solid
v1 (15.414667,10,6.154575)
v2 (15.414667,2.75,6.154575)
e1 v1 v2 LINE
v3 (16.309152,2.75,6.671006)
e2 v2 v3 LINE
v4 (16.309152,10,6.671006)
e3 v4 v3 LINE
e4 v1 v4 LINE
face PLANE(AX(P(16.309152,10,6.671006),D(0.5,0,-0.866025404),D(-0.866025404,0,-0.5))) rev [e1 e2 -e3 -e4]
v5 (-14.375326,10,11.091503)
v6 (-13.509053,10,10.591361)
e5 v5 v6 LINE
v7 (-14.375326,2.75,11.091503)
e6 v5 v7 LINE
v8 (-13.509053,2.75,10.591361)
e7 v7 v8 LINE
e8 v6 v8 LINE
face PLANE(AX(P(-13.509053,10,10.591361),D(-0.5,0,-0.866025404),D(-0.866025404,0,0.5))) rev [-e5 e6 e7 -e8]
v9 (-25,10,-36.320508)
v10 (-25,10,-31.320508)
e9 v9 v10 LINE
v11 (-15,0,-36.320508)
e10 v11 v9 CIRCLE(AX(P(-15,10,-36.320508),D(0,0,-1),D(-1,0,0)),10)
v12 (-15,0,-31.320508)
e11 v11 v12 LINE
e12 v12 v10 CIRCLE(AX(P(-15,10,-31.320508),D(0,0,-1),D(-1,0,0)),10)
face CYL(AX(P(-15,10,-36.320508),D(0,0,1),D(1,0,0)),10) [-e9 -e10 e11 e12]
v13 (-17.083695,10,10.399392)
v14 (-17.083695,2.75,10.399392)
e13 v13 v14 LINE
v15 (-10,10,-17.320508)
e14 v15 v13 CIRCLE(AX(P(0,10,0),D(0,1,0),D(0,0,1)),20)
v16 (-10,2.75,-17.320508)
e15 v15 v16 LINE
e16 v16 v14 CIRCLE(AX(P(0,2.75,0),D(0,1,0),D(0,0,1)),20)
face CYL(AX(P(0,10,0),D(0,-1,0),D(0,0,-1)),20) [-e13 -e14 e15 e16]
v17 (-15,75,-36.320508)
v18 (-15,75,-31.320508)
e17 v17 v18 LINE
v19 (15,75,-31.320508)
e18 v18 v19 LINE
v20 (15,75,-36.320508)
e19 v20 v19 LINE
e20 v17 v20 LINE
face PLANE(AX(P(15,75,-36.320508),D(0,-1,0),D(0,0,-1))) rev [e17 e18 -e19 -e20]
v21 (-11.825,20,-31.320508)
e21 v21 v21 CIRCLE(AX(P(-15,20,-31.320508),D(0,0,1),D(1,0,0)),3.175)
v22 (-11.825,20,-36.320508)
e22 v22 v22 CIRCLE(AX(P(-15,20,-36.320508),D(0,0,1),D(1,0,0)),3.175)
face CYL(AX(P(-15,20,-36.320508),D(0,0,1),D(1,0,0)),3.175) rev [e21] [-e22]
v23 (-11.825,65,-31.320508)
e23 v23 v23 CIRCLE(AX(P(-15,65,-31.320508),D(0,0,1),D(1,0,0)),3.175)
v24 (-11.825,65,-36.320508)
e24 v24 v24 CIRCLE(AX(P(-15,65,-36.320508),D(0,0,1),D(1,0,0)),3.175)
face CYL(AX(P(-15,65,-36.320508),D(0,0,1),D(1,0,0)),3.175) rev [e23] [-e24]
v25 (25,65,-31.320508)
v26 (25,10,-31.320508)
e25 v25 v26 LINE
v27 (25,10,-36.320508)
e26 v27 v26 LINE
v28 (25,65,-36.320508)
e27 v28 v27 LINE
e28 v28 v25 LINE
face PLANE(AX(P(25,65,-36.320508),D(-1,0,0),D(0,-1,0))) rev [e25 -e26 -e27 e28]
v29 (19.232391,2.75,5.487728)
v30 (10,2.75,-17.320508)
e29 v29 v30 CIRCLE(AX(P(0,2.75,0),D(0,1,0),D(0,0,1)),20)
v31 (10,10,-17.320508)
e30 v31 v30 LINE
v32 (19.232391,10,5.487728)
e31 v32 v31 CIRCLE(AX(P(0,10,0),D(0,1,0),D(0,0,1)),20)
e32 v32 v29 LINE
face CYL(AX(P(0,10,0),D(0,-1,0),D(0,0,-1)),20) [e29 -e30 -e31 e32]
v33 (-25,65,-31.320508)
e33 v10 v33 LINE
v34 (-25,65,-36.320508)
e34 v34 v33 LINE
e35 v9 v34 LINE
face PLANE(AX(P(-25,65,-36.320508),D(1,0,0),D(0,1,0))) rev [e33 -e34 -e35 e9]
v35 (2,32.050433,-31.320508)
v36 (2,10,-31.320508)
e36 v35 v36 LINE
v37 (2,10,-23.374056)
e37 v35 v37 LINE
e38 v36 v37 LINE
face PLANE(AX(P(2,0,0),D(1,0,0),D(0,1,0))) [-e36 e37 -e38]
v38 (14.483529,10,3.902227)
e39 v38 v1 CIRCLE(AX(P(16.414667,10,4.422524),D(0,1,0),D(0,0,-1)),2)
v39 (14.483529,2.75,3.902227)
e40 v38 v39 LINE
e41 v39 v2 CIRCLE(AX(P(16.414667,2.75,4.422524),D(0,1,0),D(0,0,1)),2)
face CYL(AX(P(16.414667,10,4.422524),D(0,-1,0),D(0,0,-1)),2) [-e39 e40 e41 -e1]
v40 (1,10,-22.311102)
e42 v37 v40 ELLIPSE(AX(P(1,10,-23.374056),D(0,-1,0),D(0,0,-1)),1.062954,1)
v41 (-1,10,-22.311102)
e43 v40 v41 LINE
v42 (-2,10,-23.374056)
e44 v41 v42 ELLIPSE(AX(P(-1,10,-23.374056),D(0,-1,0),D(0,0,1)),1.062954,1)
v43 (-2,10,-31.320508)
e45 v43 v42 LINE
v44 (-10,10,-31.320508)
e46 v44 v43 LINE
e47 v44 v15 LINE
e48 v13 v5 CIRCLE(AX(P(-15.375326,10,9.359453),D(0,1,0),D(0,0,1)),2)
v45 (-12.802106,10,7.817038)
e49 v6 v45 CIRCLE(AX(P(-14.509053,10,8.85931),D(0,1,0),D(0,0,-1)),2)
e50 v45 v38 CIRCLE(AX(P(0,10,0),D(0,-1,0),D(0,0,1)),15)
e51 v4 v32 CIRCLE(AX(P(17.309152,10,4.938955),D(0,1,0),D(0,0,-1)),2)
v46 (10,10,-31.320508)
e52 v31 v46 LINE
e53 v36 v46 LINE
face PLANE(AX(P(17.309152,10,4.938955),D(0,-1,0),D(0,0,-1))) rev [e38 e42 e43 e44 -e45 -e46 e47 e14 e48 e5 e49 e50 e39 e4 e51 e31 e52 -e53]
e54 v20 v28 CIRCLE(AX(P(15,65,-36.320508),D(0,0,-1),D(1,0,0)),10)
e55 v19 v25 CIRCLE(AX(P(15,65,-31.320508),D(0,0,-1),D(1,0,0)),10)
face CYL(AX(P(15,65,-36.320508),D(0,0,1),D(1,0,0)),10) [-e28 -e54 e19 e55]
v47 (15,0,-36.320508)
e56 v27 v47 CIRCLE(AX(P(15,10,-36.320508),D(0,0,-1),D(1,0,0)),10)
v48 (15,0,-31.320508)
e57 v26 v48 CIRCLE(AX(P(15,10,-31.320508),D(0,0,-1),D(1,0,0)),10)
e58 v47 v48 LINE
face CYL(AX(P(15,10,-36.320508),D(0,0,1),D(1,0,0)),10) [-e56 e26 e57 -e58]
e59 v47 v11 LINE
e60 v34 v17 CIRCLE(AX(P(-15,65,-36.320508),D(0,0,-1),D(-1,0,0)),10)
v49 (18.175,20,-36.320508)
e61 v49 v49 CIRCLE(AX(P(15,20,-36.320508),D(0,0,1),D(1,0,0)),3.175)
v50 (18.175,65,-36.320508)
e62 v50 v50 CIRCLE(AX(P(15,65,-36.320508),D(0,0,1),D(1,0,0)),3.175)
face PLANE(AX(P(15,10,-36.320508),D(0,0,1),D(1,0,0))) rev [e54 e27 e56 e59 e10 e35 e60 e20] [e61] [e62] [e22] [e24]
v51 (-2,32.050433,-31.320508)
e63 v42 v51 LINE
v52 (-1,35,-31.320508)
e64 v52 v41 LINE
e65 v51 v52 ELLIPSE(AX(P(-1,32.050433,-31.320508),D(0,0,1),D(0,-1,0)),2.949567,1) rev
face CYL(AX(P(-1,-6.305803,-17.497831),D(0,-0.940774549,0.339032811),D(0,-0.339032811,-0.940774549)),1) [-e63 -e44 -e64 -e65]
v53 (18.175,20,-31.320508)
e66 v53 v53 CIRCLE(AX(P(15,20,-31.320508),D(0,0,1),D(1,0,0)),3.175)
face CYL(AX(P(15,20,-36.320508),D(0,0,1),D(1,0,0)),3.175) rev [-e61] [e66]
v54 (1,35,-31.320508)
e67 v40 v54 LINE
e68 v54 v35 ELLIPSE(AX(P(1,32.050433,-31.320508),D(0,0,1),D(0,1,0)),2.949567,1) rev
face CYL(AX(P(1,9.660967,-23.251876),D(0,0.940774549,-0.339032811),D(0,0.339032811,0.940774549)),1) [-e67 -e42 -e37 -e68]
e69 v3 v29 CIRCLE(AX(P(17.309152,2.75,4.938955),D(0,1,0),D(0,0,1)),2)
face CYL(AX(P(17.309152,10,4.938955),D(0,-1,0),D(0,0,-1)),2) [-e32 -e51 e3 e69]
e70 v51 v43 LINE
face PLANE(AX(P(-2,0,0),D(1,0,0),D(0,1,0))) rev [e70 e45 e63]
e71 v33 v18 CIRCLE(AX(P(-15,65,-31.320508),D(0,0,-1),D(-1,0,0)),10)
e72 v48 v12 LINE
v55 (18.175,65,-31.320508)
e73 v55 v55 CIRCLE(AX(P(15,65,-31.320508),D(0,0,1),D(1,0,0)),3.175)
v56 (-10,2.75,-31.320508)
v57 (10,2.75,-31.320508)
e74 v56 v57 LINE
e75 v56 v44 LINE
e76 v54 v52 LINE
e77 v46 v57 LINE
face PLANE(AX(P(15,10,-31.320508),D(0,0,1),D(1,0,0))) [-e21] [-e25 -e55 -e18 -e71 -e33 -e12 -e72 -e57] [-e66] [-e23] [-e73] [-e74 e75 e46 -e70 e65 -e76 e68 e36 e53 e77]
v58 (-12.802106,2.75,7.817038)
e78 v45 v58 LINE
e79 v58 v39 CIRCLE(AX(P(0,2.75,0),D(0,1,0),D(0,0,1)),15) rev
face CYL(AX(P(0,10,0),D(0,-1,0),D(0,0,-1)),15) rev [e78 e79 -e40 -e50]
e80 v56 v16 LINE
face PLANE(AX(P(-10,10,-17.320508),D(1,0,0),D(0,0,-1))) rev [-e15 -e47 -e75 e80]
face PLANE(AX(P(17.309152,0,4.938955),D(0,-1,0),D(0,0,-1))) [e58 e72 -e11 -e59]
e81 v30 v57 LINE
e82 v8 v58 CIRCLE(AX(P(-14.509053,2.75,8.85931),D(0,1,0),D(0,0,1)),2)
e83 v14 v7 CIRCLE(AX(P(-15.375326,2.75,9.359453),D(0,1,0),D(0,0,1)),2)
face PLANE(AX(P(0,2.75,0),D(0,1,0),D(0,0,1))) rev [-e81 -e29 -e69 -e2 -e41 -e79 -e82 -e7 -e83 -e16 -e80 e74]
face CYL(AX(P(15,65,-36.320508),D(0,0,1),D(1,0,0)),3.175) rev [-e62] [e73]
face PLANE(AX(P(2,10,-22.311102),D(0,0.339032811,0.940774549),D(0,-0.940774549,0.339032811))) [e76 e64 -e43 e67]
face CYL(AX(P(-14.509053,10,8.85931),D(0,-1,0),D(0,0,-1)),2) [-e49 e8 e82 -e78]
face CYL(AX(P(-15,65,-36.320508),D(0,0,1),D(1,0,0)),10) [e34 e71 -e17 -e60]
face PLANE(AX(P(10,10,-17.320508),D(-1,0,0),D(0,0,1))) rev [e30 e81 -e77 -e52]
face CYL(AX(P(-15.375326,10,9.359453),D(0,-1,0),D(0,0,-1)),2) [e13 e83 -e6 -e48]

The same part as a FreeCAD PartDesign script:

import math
import FreeCAD as App
import Part
import Sketcher

V = App.Vector
Q = App.Units.Quantity


def edges_at(feature, points):
    """Names of the edges that pass closest to the given points."""
    edges = feature.Shape.Edges
    near = lambda p: min(range(len(edges)), key=lambda i: edges[i].distToShape(Part.Vertex(*p))[0])
    return sorted({f"Edge{near(p) + 1}" for p in points})

doc = App.newDocument("Part")
body = doc.addObject("PartDesign::Body", "Body")

sketch1 = doc.addObject("Sketcher::SketchObject", "Sketch")
body.addObject(sketch1)
sketch1.AttachmentSupport = (doc.XZ_Plane, [""])
sketch1.MapMode = "FlatFace"
sketch1.addGeometry([
    Part.LineSegment(V(-14.4, 11.1, 0), V(-13.5, 10.6, 0)),
    Part.ArcOfCircle(Part.Circle(V(-14.5, 8.9, 0), V(0, 0, 1), 2), math.radians(-31), math.radians(60)),
    Part.ArcOfCircle(Part.Circle(V(0, 0, 0), V(0, 0, 1), 15), math.radians(149), math.radians(375)),
    Part.ArcOfCircle(Part.Circle(V(16.4, 4.4, 0), V(0, 0, 1), 2), math.radians(120), math.radians(195)),
    Part.LineSegment(V(15.4, 6.2, 0), V(16.3, 6.7, 0)),
    Part.ArcOfCircle(Part.Circle(V(17.3, 4.9, 0), V(0, 0, 1), 2), math.radians(16), math.radians(120)),
    Part.ArcOfCircle(Part.Circle(V(0, 0, 0), V(0, 0, 1), 20), math.radians(-60), math.radians(16)),
    Part.LineSegment(V(10, -17.3, 0), V(10, -21.3, 0)),
    Part.LineSegment(V(10, -21.3, 0), V(-10, -21.3, 0)),
    Part.LineSegment(V(-10, -21.3, 0), V(-10, -17.3, 0)),
    Part.ArcOfCircle(Part.Circle(V(0, 0, 0), V(0, 0, 1), 20), math.radians(149), math.radians(240)),
    Part.ArcOfCircle(Part.Circle(V(-15.4, 9.4, 0), V(0, 0, 1), 2), math.radians(60), math.radians(149)),
], False)
sketch1.addConstraint([
    Sketcher.Constraint("Tangent", 0, 2, 1, 2),
    Sketcher.Constraint("Tangent", 1, 1, 2, 1),
    Sketcher.Constraint("Tangent", 2, 2, 3, 2),
    Sketcher.Constraint("Tangent", 3, 1, 4, 1),
    Sketcher.Constraint("Tangent", 4, 2, 5, 2),
    Sketcher.Constraint("Tangent", 5, 1, 6, 2),
    Sketcher.Constraint("Coincident", 6, 1, 7, 1),
    Sketcher.Constraint("Coincident", 7, 2, 8, 1),
    Sketcher.Constraint("Coincident", 8, 2, 9, 1),
    Sketcher.Constraint("Coincident", 9, 2, 10, 2),
    Sketcher.Constraint("Tangent", 10, 1, 11, 2),
    Sketcher.Constraint("Tangent", 11, 1, 0, 1),
    Sketcher.Constraint("Vertical", 7),
    Sketcher.Constraint("Horizontal", 8),
    Sketcher.Constraint("Vertical", 9),
    Sketcher.Constraint("Coincident", 2, 3, -1, 1),
    Sketcher.Constraint("Coincident", 6, 3, -1, 1),
    Sketcher.Constraint("Coincident", 10, 3, -1, 1),
    Sketcher.Constraint("Equal", 1, 3),
    Sketcher.Constraint("Equal", 3, 5),
    Sketcher.Constraint("Equal", 6, 10),
    Sketcher.Constraint("Equal", 5, 11),
    Sketcher.Constraint("Horizontal", 6, 1, 9, 2),
    Sketcher.Constraint("Radius", 1, Q("2 mm")),
    Sketcher.Constraint("Radius", 2, Q("15 mm")),
    Sketcher.Constraint("Radius", 6, Q("20 mm")),
    Sketcher.Constraint("DistanceX", 8, 2, 8, 1, Q("20 mm")),
    Sketcher.Constraint("DistanceY", 7, 2, 7, 1, Q("4 mm")),
    Sketcher.Constraint("Angle", 0, Q("-30 deg")),
    Sketcher.Constraint("Angle", 4, Q("30 deg")),
    Sketcher.Constraint("DistanceY", 2, 2, 5, 1, Q("1.585501 mm")),
    Sketcher.Constraint("DistanceY", -1, 1, 1, 3, Q("8.85931 mm")),
])
pad1 = doc.addObject("PartDesign::Pad", "Pad")
body.addObject(pad1)
pad1.Profile = sketch1
pad1.Length = 10
pad1.Reversed = True

sketch2 = doc.addObject("Sketcher::SketchObject", "Sketch001")
body.addObject(sketch2)
sketch2.AttachmentSupport = (doc.XY_Plane, [""])
sketch2.MapMode = "FlatFace"
sketch2.AttachmentOffset = App.Placement(V(0, 0, -21.320508), App.Rotation())
sketch2.addGeometry([
    Part.LineSegment(V(10, 10, 0), V(10, 0, 0)),
    Part.LineSegment(V(10, 0, 0), V(-10, 0, 0)),
    Part.LineSegment(V(-10, 0, 0), V(-10, 10, 0)),
    Part.LineSegment(V(-10, 10, 0), V(10, 10, 0)),
], False)
sketch2.addConstraint([
    Sketcher.Constraint("Coincident", 0, 2, 1, 1),
    Sketcher.Constraint("Coincident", 1, 2, 2, 1),
    Sketcher.Constraint("Coincident", 2, 2, 3, 1),
    Sketcher.Constraint("Coincident", 3, 2, 0, 1),
    Sketcher.Constraint("Vertical", 0),
    Sketcher.Constraint("Horizontal", 1),
    Sketcher.Constraint("Vertical", 2),
    Sketcher.Constraint("Horizontal", 3),
    Sketcher.Constraint("Symmetric", 0, 2, 1, 2, -1, 1),
    Sketcher.Constraint("DistanceX", 1, 2, 1, 1, Q("20 mm")),
    Sketcher.Constraint("DistanceY", 0, 2, 0, 1, Q("10 mm")),
])
pad2 = doc.addObject("PartDesign::Pad", "Pad001")
body.addObject(pad2)
pad2.Profile = sketch2
pad2.Length = 10
pad2.Reversed = True

sketch3 = doc.addObject("Sketcher::SketchObject", "Sketch002")
body.addObject(sketch3)
sketch3.AttachmentSupport = (doc.XY_Plane, [""])
sketch3.MapMode = "FlatFace"
sketch3.AttachmentOffset = App.Placement(V(0, 0, -31.320508), App.Rotation())
sketch3.addGeometry([
    Part.LineSegment(V(-15, 75, 0), V(15, 75, 0)),
    Part.ArcOfCircle(Part.Circle(V(15, 65, 0), V(0, 0, 1), 10), math.radians(0), math.radians(90)),
    Part.LineSegment(V(25, 65, 0), V(25, 10, 0)),
    Part.ArcOfCircle(Part.Circle(V(15, 10, 0), V(0, 0, 1), 10), math.radians(-90), math.radians(0)),
    Part.LineSegment(V(15, 0, 0), V(-15, 0, 0)),
    Part.ArcOfCircle(Part.Circle(V(-15, 10, 0), V(0, 0, 1), 10), math.radians(180), math.radians(270)),
    Part.LineSegment(V(-25, 10, 0), V(-25, 65, 0)),
    Part.ArcOfCircle(Part.Circle(V(-15, 65, 0), V(0, 0, 1), 10), math.radians(90), math.radians(180)),
], False)
sketch3.addConstraint([
    Sketcher.Constraint("Tangent", 0, 2, 1, 2),
    Sketcher.Constraint("Tangent", 1, 1, 2, 1),
    Sketcher.Constraint("Tangent", 2, 2, 3, 2),
    Sketcher.Constraint("Tangent", 3, 1, 4, 1),
    Sketcher.Constraint("Tangent", 4, 2, 5, 2),
    Sketcher.Constraint("Tangent", 5, 1, 6, 1),
    Sketcher.Constraint("Tangent", 6, 2, 7, 2),
    Sketcher.Constraint("Tangent", 7, 1, 0, 1),
    Sketcher.Constraint("Horizontal", 0),
    Sketcher.Constraint("Vertical", 2),
    Sketcher.Constraint("Horizontal", 4),
    Sketcher.Constraint("Vertical", 6),
    Sketcher.Constraint("Equal", 1, 3),
    Sketcher.Constraint("Equal", 3, 5),
    Sketcher.Constraint("Equal", 5, 7),
    Sketcher.Constraint("Symmetric", 3, 1, 4, 2, -1, 1),
    Sketcher.Constraint("Radius", 1, Q("10 mm")),
    Sketcher.Constraint("DistanceX", 0, 1, 0, 2, Q("30 mm")),
    Sketcher.Constraint("DistanceY", 2, 2, 2, 1, Q("55 mm")),
])
pad3 = doc.addObject("PartDesign::Pad", "Pad002")
body.addObject(pad3)
pad3.Profile = sketch3
pad3.Length = 5
pad3.Reversed = True

sketch4 = doc.addObject("Sketcher::SketchObject", "Sketch003")
body.addObject(sketch4)
sketch4.AttachmentSupport = (doc.YZ_Plane, [""])
sketch4.MapMode = "FlatFace"
sketch4.addGeometry([
    Part.LineSegment(V(10, -22, 0), V(35, -31, 0)),
    Part.LineSegment(V(35, -31, 0), V(10, -31, 0)),
    Part.LineSegment(V(10, -31, 0), V(10, -22, 0)),
], False)
sketch4.addConstraint([
    Sketcher.Constraint("Coincident", 0, 2, 1, 1),
    Sketcher.Constraint("Coincident", 1, 2, 2, 1),
    Sketcher.Constraint("Coincident", 2, 2, 0, 1),
    Sketcher.Constraint("Horizontal", 1),
    Sketcher.Constraint("Vertical", 2),
    Sketcher.Constraint("DistanceX", 1, 2, 1, 1, Q("25 mm")),
    Sketcher.Constraint("DistanceX", -1, 1, 0, 2, Q("35 mm")),
    Sketcher.Constraint("DistanceY", 2, 2, -1, 1, Q("22.311102 mm")),
    Sketcher.Constraint("Distance", 0, Q("26.573848 mm")),
])
pad4 = doc.addObject("PartDesign::Pad", "Pad003")
body.addObject(pad4)
pad4.Profile = sketch4
pad4.Type = "TwoLengths"
pad4.Length = 2
pad4.Length2 = 2
pad4.Reversed = True
doc.recompute()

fillet = doc.addObject("PartDesign::Fillet", "Fillet")
body.addObject(fillet)
fillet.Base = (pad4, edges_at(pad4, [(2, 22.5, -26.816), (-2, 22.5, -26.816)]))
fillet.Radius = 1

sketch5 = doc.addObject("Sketcher::SketchObject", "Sketch004")
body.addObject(sketch5)
sketch5.AttachmentSupport = (doc.XY_Plane, [""])
sketch5.MapMode = "FlatFace"
sketch5.AttachmentOffset = App.Placement(V(0, 0, -31.320508), App.Rotation())
sketch5.addGeometry([
    Part.Circle(V(-15, 65, 0), V(0, 0, 1), 3.2),
    Part.Circle(V(15, 65, 0), V(0, 0, 1), 3.2),
    Part.Circle(V(15, 20, 0), V(0, 0, 1), 3.2),
    Part.Circle(V(-15, 20, 0), V(0, 0, 1), 3.2),
], False)
sketch5.addConstraint([
    Sketcher.Constraint("Equal", 0, 1),
    Sketcher.Constraint("Equal", 1, 2),
    Sketcher.Constraint("Equal", 2, 3),
    Sketcher.Constraint("Symmetric", 0, 3, 1, 3, -2),
    Sketcher.Constraint("Symmetric", 2, 3, 3, 3, -2),
    Sketcher.Constraint("Vertical", 1, 3, 2, 3),
    Sketcher.Constraint("Diameter", 0, Q("6.35 mm")),
    Sketcher.Constraint("DistanceX", 0, 3, -1, 1, Q("15 mm")),
    Sketcher.Constraint("DistanceY", -1, 1, 0, 3, Q("65 mm")),
    Sketcher.Constraint("DistanceY", -1, 1, 2, 3, Q("20 mm")),
])
pocket1 = doc.addObject("PartDesign::Pocket", "Pocket")
body.addObject(pocket1)
pocket1.Profile = sketch5
pocket1.Type = "ThroughAll"

sketch6 = doc.addObject("Sketcher::SketchObject", "Sketch005")
body.addObject(sketch6)
sketch6.AttachmentSupport = (doc.XZ_Plane, [""])
sketch6.MapMode = "FlatFace"
sketch6.addGeometry([
    Part.LineSegment(V(-29, 17, 0), V(-29, -31, 0)),
    Part.LineSegment(V(-29, -31, 0), V(27, -31, 0)),
    Part.LineSegment(V(27, -31, 0), V(27, 17, 0)),
    Part.LineSegment(V(27, 17, 0), V(-29, 17, 0)),
], False)
sketch6.addConstraint([
    Sketcher.Constraint("Coincident", 0, 2, 1, 1),
    Sketcher.Constraint("Coincident", 1, 2, 2, 1),
    Sketcher.Constraint("Coincident", 2, 2, 3, 1),
    Sketcher.Constraint("Coincident", 3, 2, 0, 1),
    Sketcher.Constraint("Vertical", 0),
    Sketcher.Constraint("Horizontal", 1),
    Sketcher.Constraint("Vertical", 2),
    Sketcher.Constraint("Horizontal", 3),
    Sketcher.Constraint("DistanceX", 1, 1, 1, 2, Q("55.480568 mm")),
    Sketcher.Constraint("DistanceY", 0, 2, 0, 1, Q("48.561795 mm")),
    Sketcher.Constraint("DistanceY", 0, 2, -1, 1, Q("31.320508 mm")),
    Sketcher.Constraint("DistanceX", -1, 1, 1, 2, Q("26.967091 mm")),
])
pocket2 = doc.addObject("PartDesign::Pocket", "Pocket001")
body.addObject(pocket2)
pocket2.Profile = sketch6
pocket2.Length = 2.75

doc.recompute()
